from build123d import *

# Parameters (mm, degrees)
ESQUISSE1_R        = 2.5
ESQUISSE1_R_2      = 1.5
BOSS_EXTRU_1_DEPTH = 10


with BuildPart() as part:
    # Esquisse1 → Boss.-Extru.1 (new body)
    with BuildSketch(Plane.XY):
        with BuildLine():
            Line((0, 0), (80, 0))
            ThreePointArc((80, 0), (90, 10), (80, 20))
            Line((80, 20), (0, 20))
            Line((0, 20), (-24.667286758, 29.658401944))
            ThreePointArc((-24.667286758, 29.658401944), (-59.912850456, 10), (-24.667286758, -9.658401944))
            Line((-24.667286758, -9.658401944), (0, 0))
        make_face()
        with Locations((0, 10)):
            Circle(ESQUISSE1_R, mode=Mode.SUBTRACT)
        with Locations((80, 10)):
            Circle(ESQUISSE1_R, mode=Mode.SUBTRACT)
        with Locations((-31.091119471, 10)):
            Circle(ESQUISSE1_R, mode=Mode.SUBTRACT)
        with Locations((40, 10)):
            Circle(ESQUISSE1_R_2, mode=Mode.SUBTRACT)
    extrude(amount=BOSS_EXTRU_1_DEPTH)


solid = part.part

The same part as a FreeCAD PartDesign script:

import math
import FreeCAD as App
import Part
import Sketcher
Q = App.Units.Quantity

doc = App.newDocument("Part")
body = doc.addObject("PartDesign::Body", "Body")

# Sketch on XY plane
sketch1 = body.newObject("Sketcher::SketchObject", "Sketch")
sketch1.AttachmentSupport = (doc.getObject("XY_Plane"), [""])
sketch1.MapMode = "FlatFace"
sketch1.addGeometry([
    Part.LineSegment(App.Vector(0, 0, 0), App.Vector(80, 0, 0)),  # 0
    Part.ArcOfCircle(Part.Circle(App.Vector(80, 10, 0), App.Vector(0, 0, 1), 10), math.radians(-90), math.radians(90)),  # 1
    Part.LineSegment(App.Vector(80, 20, 0), App.Vector(0, 20, 0)),  # 2
    Part.LineSegment(App.Vector(0, 20, 0), App.Vector(-24.7, 29.7, 0)),  # 3
    Part.ArcOfCircle(Part.Circle(App.Vector(-36.8, 10, 0), App.Vector(0, 0, 1), 23.1), math.radians(58), math.radians(302)),  # 4
    Part.LineSegment(App.Vector(-24.7, -9.7, 0), App.Vector(0, 0, 0)),  # 5
    Part.Circle(App.Vector(-31.1, 10, 0), App.Vector(0, 0, 1), 2.5),  # 6
    Part.Circle(App.Vector(0, 10, 0), App.Vector(0, 0, 1), 2.5),  # 7
    Part.Circle(App.Vector(40, 10, 0), App.Vector(0, 0, 1), 1.5),  # 8
    Part.Circle(App.Vector(80, 10, 0), App.Vector(0, 0, 1), 2.5),  # 9
], False)
sketch1.addConstraint([
    Sketcher.Constraint("Tangent", 0, 2, 1, 1),
    Sketcher.Constraint("Tangent", 1, 2, 2, 1),
    Sketcher.Constraint("Coincident", 2, 2, 3, 1),
    Sketcher.Constraint("Coincident", 3, 2, 4, 1),
    Sketcher.Constraint("Coincident", 4, 2, 5, 1),
    Sketcher.Constraint("Coincident", 5, 2, 0, 1),
    Sketcher.Constraint("Horizontal", 0),
    Sketcher.Constraint("Horizontal", 2),
    Sketcher.Constraint("Coincident", 5, 2, -1, 1),
    Sketcher.Constraint("Coincident", 9, 3, 1, 3),
    Sketcher.Constraint("Equal", 6, 7),
    Sketcher.Constraint("Equal", 7, 9),
    Sketcher.Constraint("PointOnObject", 7, 3, -2),
    Sketcher.Constraint("PointOnObject", 2, 2, -2),
    Sketcher.Constraint("Horizontal", 1, 3, 4, 3),
    Sketcher.Constraint("Horizontal", 4, 3, 6, 3),
    Sketcher.Constraint("Horizontal", 6, 3, 7, 3),
    Sketcher.Constraint("Horizontal", 7, 3, 8, 3),
    Sketcher.Constraint("Vertical", 3, 2, 4, 2),
    Sketcher.Constraint("Diameter", 6, Q("5 mm")),
    Sketcher.Constraint("Diameter", 8, Q("3 mm")),
    Sketcher.Constraint("Radius", 1, Q("10 mm")),
    Sketcher.Constraint("DistanceX", 0, 1, 0, 2, Q("80 mm")),
    Sketcher.Constraint("DistanceX", -1, 1, 8, 3, Q("40 mm")),
    Sketcher.Constraint("Radius", 4, Q("23.105071 mm")),
    Sketcher.Constraint("DistanceY", -1, 1, 3, 2, Q("29.658402 mm")),
    Sketcher.Constraint("Distance", 3, Q("26.490749 mm")),
    Sketcher.Constraint("DistanceX", 6, 3, -1, 1, Q("31.091119 mm")),
])
pad1 = body.newObject("PartDesign::Pad", "Pad")
pad1.Profile = sketch1
pad1.Length = 10

doc.recompute()
